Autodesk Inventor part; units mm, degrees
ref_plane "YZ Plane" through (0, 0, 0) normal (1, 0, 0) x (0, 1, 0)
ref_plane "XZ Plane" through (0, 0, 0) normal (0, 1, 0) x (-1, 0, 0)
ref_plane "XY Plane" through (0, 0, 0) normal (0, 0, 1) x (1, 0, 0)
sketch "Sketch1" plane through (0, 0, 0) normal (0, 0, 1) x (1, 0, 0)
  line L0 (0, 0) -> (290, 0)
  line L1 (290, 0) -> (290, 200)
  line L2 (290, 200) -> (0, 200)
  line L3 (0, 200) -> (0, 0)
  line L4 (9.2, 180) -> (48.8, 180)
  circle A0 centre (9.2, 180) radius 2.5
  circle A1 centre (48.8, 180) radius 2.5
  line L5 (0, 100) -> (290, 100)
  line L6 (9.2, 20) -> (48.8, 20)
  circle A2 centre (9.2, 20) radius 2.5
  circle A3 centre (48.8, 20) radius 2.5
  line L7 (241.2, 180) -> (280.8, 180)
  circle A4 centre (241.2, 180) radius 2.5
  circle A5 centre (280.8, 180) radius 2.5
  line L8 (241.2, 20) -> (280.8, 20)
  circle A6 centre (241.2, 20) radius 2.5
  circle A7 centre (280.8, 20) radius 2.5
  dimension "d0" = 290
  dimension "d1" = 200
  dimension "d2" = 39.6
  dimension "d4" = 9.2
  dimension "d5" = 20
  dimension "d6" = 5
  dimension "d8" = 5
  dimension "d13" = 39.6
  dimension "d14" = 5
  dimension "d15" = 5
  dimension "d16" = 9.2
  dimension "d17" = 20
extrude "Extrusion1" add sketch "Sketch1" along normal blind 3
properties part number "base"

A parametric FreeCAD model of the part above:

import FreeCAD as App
import Part
import Sketcher

V = App.Vector


def add_polygon(sketch, points):
    """Adds a closed chain of lines whose ends are joined by coincident constraints."""
    first, n = sketch.GeometryCount, len(points)
    for a, b in zip(points, points[1:] + points[:1]):
        sketch.addGeometry(Part.LineSegment(App.Vector(*a, 0), App.Vector(*b, 0)), False)
    for i in range(n):
        sketch.addConstraint(Sketcher.Constraint("Coincident", first + i, 2, first + (i + 1) % n, 1))

doc = App.newDocument("Part")
body = doc.addObject("PartDesign::Body", "Body")

sketch1 = body.newObject("Sketcher::SketchObject", "Sketch")
sketch1.AttachmentSupport = (doc.getObject("XY_Plane"), [""])
sketch1.MapMode = "FlatFace"
add_polygon(sketch1, [(0, 0), (290, 0), (290, 200), (0, 200)])
sketch1.addGeometry(Part.Circle(V(9.2, 20, 0), V(0, 0, 1), 2.5), False)
sketch1.addGeometry(Part.Circle(V(48.8, 20, 0), V(0, 0, 1), 2.5), False)
sketch1.addGeometry(Part.Circle(V(241.2, 20, 0), V(0, 0, 1), 2.5), False)
sketch1.addGeometry(Part.Circle(V(280.8, 20, 0), V(0, 0, 1), 2.5), False)
sketch1.addGeometry(Part.Circle(V(9.2, 180, 0), V(0, 0, 1), 2.5), False)
sketch1.addGeometry(Part.Circle(V(48.8, 180, 0), V(0, 0, 1), 2.5), False)
sketch1.addGeometry(Part.Circle(V(241.2, 180, 0), V(0, 0, 1), 2.5), False)
sketch1.addGeometry(Part.Circle(V(280.8, 180, 0), V(0, 0, 1), 2.5), False)
sketch1.addConstraint([
    Sketcher.Constraint("Horizontal", 0),
    Sketcher.Constraint("Vertical", 1),
    Sketcher.Constraint("Horizontal", 2),
    Sketcher.Constraint("Vertical", 3),
    Sketcher.Constraint("Coincident", 3, 2, -1, 1),
    Sketcher.Constraint("Equal", 4, 5),
    Sketcher.Constraint("Equal", 5, 6),
    Sketcher.Constraint("Equal", 6, 7),
    Sketcher.Constraint("Equal", 7, 8),
    Sketcher.Constraint("Equal", 8, 9),
    Sketcher.Constraint("Equal", 9, 10),
    Sketcher.Constraint("Equal", 10, 11),
    Sketcher.Constraint("Horizontal", 4, 3, 5, 3),
    Sketcher.Constraint("Horizontal", 5, 3, 6, 3),
    Sketcher.Constraint("Horizontal", 6, 3, 7, 3),
    Sketcher.Constraint("Horizontal", 8, 3, 9, 3),
    Sketcher.Constraint("Horizontal", 9, 3, 10, 3),
    Sketcher.Constraint("Horizontal", 10, 3, 11, 3),
    Sketcher.Constraint("Vertical", 4, 3, 8, 3),
    Sketcher.Constraint("Vertical", 5, 3, 9, 3),
    Sketcher.Constraint("Vertical", 6, 3, 10, 3),
    Sketcher.Constraint("Vertical", 7, 3, 11, 3),
    Sketcher.Constraint("Diameter", 4, 5.0),
    Sketcher.Constraint("DistanceX", 0, 1, 0, 2, 290.0),
    Sketcher.Constraint("DistanceY", 1, 1, 1, 2, 200.0),
    Sketcher.Constraint("DistanceY", -1, 1, 4, 3, 20.0),
    Sketcher.Constraint("DistanceY", 11, 3, 1, 2, 20.0),
    Sketcher.Constraint("DistanceX", -1, 1, 4, 3, 9.2),
    Sketcher.Constraint("DistanceX", 4, 3, 5, 3, 39.6),
    Sketcher.Constraint("DistanceX", 6, 3, 7, 3, 39.6),
    Sketcher.Constraint("DistanceX", 7, 3, 0, 2, 9.2),
])
pad1 = body.newObject("PartDesign::Pad", "Pad")
pad1.Profile = sketch1
pad1.Length = 3

doc.recompute()
